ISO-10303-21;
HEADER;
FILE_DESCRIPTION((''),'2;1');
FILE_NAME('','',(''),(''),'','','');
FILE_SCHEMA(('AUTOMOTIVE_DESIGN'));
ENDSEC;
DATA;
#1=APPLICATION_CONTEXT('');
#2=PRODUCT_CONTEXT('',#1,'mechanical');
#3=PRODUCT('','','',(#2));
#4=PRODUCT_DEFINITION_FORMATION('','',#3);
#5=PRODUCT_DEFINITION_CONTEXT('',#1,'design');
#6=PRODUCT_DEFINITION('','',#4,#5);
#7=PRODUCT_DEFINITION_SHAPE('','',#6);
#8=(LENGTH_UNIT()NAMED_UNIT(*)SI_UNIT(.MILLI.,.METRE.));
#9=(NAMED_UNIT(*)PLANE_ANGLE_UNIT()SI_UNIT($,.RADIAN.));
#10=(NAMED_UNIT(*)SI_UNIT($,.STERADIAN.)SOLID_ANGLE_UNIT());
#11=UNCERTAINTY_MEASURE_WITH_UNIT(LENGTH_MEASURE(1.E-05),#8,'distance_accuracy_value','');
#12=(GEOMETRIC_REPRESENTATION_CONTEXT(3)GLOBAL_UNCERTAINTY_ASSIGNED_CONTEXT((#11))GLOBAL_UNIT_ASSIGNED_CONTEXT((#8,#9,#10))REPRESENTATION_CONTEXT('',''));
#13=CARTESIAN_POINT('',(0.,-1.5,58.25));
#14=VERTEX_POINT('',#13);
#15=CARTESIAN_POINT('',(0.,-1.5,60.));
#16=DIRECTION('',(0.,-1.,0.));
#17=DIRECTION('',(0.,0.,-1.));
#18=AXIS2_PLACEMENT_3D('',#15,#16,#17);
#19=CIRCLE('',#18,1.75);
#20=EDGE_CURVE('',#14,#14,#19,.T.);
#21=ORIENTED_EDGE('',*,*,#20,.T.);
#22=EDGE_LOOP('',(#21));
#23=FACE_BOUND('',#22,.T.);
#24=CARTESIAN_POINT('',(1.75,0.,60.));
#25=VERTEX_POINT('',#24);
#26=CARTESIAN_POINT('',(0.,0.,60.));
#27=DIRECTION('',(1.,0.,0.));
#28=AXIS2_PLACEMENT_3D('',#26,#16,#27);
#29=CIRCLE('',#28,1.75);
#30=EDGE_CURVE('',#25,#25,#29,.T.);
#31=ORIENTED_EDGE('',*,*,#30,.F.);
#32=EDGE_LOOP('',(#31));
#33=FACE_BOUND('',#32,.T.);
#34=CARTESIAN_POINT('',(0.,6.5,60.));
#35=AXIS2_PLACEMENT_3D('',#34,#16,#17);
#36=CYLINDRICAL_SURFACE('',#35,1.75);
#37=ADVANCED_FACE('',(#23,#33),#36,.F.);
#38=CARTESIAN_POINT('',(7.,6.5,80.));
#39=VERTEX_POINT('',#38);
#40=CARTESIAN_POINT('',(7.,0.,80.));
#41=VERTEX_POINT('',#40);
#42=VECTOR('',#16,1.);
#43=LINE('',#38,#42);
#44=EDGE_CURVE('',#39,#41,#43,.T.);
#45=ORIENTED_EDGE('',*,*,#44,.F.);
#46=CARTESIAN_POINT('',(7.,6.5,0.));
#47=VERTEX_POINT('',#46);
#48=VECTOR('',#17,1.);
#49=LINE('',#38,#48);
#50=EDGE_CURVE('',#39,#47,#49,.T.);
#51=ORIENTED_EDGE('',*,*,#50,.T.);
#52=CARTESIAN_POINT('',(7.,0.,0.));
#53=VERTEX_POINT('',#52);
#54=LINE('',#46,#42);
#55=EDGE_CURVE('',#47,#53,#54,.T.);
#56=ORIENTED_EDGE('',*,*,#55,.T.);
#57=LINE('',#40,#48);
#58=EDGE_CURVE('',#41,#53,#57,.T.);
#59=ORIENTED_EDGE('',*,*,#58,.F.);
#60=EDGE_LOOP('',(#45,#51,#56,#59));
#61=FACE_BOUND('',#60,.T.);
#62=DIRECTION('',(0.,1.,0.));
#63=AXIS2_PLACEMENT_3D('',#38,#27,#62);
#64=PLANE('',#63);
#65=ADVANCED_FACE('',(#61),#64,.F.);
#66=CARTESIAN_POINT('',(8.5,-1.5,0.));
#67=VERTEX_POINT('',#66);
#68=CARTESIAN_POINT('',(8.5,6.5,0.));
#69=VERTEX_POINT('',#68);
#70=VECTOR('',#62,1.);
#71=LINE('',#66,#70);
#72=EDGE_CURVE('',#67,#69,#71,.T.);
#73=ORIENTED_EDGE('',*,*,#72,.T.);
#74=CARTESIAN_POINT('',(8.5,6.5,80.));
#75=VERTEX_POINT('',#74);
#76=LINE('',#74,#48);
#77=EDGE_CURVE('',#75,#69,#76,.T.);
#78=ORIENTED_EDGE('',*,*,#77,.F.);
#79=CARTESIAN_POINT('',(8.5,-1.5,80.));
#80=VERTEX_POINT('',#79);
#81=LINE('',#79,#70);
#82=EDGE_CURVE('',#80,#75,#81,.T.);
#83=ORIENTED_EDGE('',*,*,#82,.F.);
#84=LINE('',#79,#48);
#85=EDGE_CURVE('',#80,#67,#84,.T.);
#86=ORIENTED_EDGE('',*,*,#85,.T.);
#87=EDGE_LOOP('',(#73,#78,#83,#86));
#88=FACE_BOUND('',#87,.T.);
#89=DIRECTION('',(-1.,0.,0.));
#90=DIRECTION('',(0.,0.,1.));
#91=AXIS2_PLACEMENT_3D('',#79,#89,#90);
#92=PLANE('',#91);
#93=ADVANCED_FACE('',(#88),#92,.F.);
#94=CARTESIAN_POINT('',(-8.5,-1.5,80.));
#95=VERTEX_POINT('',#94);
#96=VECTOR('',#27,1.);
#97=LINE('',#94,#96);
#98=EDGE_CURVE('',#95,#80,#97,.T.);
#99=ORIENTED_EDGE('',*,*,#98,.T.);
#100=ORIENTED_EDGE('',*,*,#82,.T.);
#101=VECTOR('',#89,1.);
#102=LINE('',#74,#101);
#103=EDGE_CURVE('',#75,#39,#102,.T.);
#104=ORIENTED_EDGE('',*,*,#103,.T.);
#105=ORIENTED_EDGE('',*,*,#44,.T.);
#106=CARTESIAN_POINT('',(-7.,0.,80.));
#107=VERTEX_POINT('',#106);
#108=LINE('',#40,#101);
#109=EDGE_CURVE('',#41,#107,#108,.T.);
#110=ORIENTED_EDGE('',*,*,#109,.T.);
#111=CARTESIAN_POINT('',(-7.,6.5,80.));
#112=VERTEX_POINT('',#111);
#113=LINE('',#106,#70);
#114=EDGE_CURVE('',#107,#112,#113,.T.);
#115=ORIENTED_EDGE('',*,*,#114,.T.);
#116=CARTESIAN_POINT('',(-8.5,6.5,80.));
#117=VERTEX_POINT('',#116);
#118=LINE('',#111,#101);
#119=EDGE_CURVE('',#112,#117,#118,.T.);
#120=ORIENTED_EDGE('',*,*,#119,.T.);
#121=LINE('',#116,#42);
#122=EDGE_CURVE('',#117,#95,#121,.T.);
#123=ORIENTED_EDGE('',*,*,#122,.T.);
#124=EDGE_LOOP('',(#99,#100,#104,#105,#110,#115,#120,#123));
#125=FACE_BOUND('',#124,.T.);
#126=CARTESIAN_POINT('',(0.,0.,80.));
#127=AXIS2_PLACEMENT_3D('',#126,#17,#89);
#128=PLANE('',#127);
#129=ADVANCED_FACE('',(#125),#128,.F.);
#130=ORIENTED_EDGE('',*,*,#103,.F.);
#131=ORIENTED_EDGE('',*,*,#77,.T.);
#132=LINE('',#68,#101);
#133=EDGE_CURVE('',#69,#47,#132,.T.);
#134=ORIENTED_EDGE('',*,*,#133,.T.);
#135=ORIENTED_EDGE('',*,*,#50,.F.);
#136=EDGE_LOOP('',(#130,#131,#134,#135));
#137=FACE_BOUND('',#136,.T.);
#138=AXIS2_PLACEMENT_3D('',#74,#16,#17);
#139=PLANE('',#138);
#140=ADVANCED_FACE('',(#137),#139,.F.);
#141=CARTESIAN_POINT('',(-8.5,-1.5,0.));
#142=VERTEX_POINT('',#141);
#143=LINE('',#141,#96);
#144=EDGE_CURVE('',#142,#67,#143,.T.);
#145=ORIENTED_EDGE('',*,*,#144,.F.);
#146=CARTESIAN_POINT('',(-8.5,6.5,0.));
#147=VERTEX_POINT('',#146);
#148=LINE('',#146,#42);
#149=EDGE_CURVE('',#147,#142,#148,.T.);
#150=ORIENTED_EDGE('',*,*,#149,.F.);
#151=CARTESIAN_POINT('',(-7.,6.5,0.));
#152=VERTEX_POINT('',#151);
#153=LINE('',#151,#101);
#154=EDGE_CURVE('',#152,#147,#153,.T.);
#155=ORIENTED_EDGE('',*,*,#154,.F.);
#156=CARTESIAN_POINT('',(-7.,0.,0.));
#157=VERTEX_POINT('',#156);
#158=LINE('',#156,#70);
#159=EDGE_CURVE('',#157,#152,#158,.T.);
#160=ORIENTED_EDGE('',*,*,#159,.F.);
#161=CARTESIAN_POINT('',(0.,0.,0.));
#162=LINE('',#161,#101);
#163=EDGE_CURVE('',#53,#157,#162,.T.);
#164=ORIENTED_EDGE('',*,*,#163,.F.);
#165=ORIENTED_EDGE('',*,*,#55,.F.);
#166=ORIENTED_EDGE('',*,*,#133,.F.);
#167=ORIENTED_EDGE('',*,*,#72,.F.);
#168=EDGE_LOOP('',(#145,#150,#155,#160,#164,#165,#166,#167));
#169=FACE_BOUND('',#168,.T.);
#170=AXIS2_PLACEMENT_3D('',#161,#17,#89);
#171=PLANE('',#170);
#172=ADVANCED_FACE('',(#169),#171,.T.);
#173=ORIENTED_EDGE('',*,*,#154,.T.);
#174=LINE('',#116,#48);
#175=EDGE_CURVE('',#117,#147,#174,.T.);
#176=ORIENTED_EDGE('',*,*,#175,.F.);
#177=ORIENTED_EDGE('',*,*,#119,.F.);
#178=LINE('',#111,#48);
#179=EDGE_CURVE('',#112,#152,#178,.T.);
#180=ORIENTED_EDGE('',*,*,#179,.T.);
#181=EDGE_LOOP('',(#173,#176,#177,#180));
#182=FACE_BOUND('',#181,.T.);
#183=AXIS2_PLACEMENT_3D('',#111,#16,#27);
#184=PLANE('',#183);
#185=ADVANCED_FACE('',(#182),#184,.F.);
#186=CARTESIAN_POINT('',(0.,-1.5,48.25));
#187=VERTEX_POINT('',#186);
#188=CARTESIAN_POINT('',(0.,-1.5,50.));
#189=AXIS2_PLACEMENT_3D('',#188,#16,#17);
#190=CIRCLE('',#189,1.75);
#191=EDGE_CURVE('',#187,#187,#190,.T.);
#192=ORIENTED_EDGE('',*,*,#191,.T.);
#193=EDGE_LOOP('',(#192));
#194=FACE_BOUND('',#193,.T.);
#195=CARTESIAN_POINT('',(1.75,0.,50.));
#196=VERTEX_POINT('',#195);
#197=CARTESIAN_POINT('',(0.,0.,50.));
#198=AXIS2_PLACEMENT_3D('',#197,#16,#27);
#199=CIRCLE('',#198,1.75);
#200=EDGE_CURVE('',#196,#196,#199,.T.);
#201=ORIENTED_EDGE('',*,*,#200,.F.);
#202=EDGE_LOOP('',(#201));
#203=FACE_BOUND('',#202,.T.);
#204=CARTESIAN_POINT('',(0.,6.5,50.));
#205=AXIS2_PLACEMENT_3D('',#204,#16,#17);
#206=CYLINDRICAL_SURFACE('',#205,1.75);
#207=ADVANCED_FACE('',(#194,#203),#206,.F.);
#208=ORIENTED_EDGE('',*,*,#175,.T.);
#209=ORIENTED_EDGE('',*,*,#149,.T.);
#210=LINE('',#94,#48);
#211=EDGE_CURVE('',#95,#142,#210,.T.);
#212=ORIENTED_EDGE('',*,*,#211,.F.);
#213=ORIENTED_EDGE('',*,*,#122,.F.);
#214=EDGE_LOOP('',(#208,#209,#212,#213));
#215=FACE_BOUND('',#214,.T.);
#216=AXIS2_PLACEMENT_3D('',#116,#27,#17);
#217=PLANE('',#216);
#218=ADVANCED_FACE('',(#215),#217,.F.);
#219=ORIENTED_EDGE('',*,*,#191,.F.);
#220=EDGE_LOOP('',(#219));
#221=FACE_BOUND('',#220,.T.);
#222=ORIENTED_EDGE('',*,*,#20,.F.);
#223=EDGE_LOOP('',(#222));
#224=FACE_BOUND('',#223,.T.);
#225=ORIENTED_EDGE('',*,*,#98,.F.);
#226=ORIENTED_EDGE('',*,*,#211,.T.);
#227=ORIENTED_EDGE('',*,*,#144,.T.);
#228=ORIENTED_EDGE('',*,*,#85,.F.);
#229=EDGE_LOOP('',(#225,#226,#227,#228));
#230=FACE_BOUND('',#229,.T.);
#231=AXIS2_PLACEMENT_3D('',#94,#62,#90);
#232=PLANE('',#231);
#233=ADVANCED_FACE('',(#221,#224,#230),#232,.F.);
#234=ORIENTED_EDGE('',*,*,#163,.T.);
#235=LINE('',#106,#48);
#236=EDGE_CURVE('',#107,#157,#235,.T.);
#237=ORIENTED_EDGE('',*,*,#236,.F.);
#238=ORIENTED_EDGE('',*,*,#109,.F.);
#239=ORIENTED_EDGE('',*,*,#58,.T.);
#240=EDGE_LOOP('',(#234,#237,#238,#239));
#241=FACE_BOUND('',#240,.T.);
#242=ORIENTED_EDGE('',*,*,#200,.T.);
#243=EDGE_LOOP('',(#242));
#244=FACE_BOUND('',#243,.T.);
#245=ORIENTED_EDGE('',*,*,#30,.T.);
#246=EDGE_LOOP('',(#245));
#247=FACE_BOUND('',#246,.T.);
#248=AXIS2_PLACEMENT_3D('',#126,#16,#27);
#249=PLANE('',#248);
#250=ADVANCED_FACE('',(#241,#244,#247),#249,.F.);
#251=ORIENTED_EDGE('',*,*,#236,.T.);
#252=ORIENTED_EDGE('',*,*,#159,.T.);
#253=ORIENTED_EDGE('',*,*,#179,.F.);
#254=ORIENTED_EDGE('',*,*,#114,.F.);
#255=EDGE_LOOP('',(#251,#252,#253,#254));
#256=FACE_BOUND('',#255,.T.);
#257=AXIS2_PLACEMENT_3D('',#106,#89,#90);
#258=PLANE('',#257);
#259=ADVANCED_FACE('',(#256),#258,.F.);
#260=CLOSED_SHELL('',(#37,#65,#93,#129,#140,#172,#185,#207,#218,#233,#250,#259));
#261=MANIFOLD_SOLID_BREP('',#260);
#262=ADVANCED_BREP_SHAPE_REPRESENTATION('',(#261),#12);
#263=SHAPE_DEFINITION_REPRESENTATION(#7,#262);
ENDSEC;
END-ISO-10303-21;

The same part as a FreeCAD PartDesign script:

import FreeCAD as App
import Part
import Sketcher

V = App.Vector


def add_polygon(sketch, points):
    """Adds a closed chain of lines whose ends are joined by coincident constraints."""
    first, n = sketch.GeometryCount, len(points)
    for a, b in zip(points, points[1:] + points[:1]):
        sketch.addGeometry(Part.LineSegment(App.Vector(*a, 0), App.Vector(*b, 0)), False)
    for i in range(n):
        sketch.addConstraint(Sketcher.Constraint("Coincident", first + i, 2, first + (i + 1) % n, 1))

doc = App.newDocument("Part")
params = doc.addObject("Spreadsheet::Sheet", "Params")
for row, (alias, value) in enumerate([
    ("sketch1_width", "17 mm"),
    ("sketch1_width2", "14 mm"),
    ("sketch1_height", "8 mm"),
    ("sketch1_height2", "6.5 mm"),
    ("pad1_length", "80 mm"),
    ("sketch2_diameter", "3.5 mm"),
], start=1):
    params.set(f"A{row}", alias)
    params.set(f"B{row}", "=" + value)
    params.setAlias(f"B{row}", alias)

body = doc.addObject("PartDesign::Body", "Body")

sketch1 = body.newObject("Sketcher::SketchObject", "Sketch")
sketch1.AttachmentSupport = (doc.getObject("XY_Plane"), [""])
sketch1.MapMode = "FlatFace"
add_polygon(sketch1, [(-7, 0), (-7, 6.5), (-8.5, 6.5), (-8.5, -1.5), (8.5, -1.5), (8.5, 6.5), (7, 6.5), (7, 0)])
sketch1.addConstraint(Sketcher.Constraint("Vertical", 0))
sketch1.addConstraint(Sketcher.Constraint("Horizontal", 1))
sketch1.addConstraint(Sketcher.Constraint("Vertical", 2))
sketch1.addConstraint(Sketcher.Constraint("Horizontal", 3))
sketch1.addConstraint(Sketcher.Constraint("Vertical", 4))
sketch1.addConstraint(Sketcher.Constraint("Horizontal", 5))
sketch1.addConstraint(Sketcher.Constraint("Vertical", 6))
sketch1.addConstraint(Sketcher.Constraint("Horizontal", 7))
sketch1.addConstraint(Sketcher.Constraint("Symmetric", 6, 2, 7, 2, -1, 1))
sketch1.addConstraint(Sketcher.Constraint("Symmetric", 1, 2, 4, 2, -2))
sketch1.addConstraint(Sketcher.Constraint("DistanceX", 3, 1, 3, 2, 17.0))
sketch1.addConstraint(Sketcher.Constraint("DistanceX", 7, 2, 7, 1, 14.0))
sketch1.addConstraint(Sketcher.Constraint("DistanceY", 2, 2, 2, 1, 8.0))
sketch1.addConstraint(Sketcher.Constraint("DistanceY", 0, 1, 0, 2, 6.5))
sketch1.setExpression("Constraints[18]", "Params.sketch1_width")
sketch1.setExpression("Constraints[19]", "Params.sketch1_width2")
sketch1.setExpression("Constraints[20]", "Params.sketch1_height")
sketch1.setExpression("Constraints[21]", "Params.sketch1_height2")
pad1 = body.newObject("PartDesign::Pad", "Pad")
pad1.Profile = sketch1
pad1.setExpression("Length", "Params.pad1_length")

sketch2 = body.newObject("Sketcher::SketchObject", "Sketch001")
sketch2.AttachmentSupport = (doc.getObject("XZ_Plane"), [""])
sketch2.MapMode = "FlatFace"
sketch2.AttachmentOffset = App.Placement(V(0, 0, 1.5), App.Rotation())
sketch2.addGeometry(Part.Circle(V(0, 50, 0), V(0, 0, 1), 1.8), False)
sketch2.addGeometry(Part.Circle(V(0, 60, 0), V(0, 0, 1), 1.8), False)
sketch2.addConstraint(Sketcher.Constraint("Equal", 0, 1))
sketch2.addConstraint(Sketcher.Constraint("PointOnObject", 0, 3, -2))
sketch2.addConstraint(Sketcher.Constraint("PointOnObject", 1, 3, -2))
sketch2.addConstraint(Sketcher.Constraint("Diameter", 0, 3.5))
sketch2.addConstraint(Sketcher.Constraint("DistanceY", -1, 1, 0, 3, 50.0))
sketch2.addConstraint(Sketcher.Constraint("DistanceY", -1, 1, 1, 3, 60.0))
sketch2.setExpression("Constraints[3]", "Params.sketch2_diameter")
pocket1 = body.newObject("PartDesign::Pocket", "Pocket")
pocket1.Profile = sketch2
pocket1.Type = "ThroughAll"

doc.recompute()
